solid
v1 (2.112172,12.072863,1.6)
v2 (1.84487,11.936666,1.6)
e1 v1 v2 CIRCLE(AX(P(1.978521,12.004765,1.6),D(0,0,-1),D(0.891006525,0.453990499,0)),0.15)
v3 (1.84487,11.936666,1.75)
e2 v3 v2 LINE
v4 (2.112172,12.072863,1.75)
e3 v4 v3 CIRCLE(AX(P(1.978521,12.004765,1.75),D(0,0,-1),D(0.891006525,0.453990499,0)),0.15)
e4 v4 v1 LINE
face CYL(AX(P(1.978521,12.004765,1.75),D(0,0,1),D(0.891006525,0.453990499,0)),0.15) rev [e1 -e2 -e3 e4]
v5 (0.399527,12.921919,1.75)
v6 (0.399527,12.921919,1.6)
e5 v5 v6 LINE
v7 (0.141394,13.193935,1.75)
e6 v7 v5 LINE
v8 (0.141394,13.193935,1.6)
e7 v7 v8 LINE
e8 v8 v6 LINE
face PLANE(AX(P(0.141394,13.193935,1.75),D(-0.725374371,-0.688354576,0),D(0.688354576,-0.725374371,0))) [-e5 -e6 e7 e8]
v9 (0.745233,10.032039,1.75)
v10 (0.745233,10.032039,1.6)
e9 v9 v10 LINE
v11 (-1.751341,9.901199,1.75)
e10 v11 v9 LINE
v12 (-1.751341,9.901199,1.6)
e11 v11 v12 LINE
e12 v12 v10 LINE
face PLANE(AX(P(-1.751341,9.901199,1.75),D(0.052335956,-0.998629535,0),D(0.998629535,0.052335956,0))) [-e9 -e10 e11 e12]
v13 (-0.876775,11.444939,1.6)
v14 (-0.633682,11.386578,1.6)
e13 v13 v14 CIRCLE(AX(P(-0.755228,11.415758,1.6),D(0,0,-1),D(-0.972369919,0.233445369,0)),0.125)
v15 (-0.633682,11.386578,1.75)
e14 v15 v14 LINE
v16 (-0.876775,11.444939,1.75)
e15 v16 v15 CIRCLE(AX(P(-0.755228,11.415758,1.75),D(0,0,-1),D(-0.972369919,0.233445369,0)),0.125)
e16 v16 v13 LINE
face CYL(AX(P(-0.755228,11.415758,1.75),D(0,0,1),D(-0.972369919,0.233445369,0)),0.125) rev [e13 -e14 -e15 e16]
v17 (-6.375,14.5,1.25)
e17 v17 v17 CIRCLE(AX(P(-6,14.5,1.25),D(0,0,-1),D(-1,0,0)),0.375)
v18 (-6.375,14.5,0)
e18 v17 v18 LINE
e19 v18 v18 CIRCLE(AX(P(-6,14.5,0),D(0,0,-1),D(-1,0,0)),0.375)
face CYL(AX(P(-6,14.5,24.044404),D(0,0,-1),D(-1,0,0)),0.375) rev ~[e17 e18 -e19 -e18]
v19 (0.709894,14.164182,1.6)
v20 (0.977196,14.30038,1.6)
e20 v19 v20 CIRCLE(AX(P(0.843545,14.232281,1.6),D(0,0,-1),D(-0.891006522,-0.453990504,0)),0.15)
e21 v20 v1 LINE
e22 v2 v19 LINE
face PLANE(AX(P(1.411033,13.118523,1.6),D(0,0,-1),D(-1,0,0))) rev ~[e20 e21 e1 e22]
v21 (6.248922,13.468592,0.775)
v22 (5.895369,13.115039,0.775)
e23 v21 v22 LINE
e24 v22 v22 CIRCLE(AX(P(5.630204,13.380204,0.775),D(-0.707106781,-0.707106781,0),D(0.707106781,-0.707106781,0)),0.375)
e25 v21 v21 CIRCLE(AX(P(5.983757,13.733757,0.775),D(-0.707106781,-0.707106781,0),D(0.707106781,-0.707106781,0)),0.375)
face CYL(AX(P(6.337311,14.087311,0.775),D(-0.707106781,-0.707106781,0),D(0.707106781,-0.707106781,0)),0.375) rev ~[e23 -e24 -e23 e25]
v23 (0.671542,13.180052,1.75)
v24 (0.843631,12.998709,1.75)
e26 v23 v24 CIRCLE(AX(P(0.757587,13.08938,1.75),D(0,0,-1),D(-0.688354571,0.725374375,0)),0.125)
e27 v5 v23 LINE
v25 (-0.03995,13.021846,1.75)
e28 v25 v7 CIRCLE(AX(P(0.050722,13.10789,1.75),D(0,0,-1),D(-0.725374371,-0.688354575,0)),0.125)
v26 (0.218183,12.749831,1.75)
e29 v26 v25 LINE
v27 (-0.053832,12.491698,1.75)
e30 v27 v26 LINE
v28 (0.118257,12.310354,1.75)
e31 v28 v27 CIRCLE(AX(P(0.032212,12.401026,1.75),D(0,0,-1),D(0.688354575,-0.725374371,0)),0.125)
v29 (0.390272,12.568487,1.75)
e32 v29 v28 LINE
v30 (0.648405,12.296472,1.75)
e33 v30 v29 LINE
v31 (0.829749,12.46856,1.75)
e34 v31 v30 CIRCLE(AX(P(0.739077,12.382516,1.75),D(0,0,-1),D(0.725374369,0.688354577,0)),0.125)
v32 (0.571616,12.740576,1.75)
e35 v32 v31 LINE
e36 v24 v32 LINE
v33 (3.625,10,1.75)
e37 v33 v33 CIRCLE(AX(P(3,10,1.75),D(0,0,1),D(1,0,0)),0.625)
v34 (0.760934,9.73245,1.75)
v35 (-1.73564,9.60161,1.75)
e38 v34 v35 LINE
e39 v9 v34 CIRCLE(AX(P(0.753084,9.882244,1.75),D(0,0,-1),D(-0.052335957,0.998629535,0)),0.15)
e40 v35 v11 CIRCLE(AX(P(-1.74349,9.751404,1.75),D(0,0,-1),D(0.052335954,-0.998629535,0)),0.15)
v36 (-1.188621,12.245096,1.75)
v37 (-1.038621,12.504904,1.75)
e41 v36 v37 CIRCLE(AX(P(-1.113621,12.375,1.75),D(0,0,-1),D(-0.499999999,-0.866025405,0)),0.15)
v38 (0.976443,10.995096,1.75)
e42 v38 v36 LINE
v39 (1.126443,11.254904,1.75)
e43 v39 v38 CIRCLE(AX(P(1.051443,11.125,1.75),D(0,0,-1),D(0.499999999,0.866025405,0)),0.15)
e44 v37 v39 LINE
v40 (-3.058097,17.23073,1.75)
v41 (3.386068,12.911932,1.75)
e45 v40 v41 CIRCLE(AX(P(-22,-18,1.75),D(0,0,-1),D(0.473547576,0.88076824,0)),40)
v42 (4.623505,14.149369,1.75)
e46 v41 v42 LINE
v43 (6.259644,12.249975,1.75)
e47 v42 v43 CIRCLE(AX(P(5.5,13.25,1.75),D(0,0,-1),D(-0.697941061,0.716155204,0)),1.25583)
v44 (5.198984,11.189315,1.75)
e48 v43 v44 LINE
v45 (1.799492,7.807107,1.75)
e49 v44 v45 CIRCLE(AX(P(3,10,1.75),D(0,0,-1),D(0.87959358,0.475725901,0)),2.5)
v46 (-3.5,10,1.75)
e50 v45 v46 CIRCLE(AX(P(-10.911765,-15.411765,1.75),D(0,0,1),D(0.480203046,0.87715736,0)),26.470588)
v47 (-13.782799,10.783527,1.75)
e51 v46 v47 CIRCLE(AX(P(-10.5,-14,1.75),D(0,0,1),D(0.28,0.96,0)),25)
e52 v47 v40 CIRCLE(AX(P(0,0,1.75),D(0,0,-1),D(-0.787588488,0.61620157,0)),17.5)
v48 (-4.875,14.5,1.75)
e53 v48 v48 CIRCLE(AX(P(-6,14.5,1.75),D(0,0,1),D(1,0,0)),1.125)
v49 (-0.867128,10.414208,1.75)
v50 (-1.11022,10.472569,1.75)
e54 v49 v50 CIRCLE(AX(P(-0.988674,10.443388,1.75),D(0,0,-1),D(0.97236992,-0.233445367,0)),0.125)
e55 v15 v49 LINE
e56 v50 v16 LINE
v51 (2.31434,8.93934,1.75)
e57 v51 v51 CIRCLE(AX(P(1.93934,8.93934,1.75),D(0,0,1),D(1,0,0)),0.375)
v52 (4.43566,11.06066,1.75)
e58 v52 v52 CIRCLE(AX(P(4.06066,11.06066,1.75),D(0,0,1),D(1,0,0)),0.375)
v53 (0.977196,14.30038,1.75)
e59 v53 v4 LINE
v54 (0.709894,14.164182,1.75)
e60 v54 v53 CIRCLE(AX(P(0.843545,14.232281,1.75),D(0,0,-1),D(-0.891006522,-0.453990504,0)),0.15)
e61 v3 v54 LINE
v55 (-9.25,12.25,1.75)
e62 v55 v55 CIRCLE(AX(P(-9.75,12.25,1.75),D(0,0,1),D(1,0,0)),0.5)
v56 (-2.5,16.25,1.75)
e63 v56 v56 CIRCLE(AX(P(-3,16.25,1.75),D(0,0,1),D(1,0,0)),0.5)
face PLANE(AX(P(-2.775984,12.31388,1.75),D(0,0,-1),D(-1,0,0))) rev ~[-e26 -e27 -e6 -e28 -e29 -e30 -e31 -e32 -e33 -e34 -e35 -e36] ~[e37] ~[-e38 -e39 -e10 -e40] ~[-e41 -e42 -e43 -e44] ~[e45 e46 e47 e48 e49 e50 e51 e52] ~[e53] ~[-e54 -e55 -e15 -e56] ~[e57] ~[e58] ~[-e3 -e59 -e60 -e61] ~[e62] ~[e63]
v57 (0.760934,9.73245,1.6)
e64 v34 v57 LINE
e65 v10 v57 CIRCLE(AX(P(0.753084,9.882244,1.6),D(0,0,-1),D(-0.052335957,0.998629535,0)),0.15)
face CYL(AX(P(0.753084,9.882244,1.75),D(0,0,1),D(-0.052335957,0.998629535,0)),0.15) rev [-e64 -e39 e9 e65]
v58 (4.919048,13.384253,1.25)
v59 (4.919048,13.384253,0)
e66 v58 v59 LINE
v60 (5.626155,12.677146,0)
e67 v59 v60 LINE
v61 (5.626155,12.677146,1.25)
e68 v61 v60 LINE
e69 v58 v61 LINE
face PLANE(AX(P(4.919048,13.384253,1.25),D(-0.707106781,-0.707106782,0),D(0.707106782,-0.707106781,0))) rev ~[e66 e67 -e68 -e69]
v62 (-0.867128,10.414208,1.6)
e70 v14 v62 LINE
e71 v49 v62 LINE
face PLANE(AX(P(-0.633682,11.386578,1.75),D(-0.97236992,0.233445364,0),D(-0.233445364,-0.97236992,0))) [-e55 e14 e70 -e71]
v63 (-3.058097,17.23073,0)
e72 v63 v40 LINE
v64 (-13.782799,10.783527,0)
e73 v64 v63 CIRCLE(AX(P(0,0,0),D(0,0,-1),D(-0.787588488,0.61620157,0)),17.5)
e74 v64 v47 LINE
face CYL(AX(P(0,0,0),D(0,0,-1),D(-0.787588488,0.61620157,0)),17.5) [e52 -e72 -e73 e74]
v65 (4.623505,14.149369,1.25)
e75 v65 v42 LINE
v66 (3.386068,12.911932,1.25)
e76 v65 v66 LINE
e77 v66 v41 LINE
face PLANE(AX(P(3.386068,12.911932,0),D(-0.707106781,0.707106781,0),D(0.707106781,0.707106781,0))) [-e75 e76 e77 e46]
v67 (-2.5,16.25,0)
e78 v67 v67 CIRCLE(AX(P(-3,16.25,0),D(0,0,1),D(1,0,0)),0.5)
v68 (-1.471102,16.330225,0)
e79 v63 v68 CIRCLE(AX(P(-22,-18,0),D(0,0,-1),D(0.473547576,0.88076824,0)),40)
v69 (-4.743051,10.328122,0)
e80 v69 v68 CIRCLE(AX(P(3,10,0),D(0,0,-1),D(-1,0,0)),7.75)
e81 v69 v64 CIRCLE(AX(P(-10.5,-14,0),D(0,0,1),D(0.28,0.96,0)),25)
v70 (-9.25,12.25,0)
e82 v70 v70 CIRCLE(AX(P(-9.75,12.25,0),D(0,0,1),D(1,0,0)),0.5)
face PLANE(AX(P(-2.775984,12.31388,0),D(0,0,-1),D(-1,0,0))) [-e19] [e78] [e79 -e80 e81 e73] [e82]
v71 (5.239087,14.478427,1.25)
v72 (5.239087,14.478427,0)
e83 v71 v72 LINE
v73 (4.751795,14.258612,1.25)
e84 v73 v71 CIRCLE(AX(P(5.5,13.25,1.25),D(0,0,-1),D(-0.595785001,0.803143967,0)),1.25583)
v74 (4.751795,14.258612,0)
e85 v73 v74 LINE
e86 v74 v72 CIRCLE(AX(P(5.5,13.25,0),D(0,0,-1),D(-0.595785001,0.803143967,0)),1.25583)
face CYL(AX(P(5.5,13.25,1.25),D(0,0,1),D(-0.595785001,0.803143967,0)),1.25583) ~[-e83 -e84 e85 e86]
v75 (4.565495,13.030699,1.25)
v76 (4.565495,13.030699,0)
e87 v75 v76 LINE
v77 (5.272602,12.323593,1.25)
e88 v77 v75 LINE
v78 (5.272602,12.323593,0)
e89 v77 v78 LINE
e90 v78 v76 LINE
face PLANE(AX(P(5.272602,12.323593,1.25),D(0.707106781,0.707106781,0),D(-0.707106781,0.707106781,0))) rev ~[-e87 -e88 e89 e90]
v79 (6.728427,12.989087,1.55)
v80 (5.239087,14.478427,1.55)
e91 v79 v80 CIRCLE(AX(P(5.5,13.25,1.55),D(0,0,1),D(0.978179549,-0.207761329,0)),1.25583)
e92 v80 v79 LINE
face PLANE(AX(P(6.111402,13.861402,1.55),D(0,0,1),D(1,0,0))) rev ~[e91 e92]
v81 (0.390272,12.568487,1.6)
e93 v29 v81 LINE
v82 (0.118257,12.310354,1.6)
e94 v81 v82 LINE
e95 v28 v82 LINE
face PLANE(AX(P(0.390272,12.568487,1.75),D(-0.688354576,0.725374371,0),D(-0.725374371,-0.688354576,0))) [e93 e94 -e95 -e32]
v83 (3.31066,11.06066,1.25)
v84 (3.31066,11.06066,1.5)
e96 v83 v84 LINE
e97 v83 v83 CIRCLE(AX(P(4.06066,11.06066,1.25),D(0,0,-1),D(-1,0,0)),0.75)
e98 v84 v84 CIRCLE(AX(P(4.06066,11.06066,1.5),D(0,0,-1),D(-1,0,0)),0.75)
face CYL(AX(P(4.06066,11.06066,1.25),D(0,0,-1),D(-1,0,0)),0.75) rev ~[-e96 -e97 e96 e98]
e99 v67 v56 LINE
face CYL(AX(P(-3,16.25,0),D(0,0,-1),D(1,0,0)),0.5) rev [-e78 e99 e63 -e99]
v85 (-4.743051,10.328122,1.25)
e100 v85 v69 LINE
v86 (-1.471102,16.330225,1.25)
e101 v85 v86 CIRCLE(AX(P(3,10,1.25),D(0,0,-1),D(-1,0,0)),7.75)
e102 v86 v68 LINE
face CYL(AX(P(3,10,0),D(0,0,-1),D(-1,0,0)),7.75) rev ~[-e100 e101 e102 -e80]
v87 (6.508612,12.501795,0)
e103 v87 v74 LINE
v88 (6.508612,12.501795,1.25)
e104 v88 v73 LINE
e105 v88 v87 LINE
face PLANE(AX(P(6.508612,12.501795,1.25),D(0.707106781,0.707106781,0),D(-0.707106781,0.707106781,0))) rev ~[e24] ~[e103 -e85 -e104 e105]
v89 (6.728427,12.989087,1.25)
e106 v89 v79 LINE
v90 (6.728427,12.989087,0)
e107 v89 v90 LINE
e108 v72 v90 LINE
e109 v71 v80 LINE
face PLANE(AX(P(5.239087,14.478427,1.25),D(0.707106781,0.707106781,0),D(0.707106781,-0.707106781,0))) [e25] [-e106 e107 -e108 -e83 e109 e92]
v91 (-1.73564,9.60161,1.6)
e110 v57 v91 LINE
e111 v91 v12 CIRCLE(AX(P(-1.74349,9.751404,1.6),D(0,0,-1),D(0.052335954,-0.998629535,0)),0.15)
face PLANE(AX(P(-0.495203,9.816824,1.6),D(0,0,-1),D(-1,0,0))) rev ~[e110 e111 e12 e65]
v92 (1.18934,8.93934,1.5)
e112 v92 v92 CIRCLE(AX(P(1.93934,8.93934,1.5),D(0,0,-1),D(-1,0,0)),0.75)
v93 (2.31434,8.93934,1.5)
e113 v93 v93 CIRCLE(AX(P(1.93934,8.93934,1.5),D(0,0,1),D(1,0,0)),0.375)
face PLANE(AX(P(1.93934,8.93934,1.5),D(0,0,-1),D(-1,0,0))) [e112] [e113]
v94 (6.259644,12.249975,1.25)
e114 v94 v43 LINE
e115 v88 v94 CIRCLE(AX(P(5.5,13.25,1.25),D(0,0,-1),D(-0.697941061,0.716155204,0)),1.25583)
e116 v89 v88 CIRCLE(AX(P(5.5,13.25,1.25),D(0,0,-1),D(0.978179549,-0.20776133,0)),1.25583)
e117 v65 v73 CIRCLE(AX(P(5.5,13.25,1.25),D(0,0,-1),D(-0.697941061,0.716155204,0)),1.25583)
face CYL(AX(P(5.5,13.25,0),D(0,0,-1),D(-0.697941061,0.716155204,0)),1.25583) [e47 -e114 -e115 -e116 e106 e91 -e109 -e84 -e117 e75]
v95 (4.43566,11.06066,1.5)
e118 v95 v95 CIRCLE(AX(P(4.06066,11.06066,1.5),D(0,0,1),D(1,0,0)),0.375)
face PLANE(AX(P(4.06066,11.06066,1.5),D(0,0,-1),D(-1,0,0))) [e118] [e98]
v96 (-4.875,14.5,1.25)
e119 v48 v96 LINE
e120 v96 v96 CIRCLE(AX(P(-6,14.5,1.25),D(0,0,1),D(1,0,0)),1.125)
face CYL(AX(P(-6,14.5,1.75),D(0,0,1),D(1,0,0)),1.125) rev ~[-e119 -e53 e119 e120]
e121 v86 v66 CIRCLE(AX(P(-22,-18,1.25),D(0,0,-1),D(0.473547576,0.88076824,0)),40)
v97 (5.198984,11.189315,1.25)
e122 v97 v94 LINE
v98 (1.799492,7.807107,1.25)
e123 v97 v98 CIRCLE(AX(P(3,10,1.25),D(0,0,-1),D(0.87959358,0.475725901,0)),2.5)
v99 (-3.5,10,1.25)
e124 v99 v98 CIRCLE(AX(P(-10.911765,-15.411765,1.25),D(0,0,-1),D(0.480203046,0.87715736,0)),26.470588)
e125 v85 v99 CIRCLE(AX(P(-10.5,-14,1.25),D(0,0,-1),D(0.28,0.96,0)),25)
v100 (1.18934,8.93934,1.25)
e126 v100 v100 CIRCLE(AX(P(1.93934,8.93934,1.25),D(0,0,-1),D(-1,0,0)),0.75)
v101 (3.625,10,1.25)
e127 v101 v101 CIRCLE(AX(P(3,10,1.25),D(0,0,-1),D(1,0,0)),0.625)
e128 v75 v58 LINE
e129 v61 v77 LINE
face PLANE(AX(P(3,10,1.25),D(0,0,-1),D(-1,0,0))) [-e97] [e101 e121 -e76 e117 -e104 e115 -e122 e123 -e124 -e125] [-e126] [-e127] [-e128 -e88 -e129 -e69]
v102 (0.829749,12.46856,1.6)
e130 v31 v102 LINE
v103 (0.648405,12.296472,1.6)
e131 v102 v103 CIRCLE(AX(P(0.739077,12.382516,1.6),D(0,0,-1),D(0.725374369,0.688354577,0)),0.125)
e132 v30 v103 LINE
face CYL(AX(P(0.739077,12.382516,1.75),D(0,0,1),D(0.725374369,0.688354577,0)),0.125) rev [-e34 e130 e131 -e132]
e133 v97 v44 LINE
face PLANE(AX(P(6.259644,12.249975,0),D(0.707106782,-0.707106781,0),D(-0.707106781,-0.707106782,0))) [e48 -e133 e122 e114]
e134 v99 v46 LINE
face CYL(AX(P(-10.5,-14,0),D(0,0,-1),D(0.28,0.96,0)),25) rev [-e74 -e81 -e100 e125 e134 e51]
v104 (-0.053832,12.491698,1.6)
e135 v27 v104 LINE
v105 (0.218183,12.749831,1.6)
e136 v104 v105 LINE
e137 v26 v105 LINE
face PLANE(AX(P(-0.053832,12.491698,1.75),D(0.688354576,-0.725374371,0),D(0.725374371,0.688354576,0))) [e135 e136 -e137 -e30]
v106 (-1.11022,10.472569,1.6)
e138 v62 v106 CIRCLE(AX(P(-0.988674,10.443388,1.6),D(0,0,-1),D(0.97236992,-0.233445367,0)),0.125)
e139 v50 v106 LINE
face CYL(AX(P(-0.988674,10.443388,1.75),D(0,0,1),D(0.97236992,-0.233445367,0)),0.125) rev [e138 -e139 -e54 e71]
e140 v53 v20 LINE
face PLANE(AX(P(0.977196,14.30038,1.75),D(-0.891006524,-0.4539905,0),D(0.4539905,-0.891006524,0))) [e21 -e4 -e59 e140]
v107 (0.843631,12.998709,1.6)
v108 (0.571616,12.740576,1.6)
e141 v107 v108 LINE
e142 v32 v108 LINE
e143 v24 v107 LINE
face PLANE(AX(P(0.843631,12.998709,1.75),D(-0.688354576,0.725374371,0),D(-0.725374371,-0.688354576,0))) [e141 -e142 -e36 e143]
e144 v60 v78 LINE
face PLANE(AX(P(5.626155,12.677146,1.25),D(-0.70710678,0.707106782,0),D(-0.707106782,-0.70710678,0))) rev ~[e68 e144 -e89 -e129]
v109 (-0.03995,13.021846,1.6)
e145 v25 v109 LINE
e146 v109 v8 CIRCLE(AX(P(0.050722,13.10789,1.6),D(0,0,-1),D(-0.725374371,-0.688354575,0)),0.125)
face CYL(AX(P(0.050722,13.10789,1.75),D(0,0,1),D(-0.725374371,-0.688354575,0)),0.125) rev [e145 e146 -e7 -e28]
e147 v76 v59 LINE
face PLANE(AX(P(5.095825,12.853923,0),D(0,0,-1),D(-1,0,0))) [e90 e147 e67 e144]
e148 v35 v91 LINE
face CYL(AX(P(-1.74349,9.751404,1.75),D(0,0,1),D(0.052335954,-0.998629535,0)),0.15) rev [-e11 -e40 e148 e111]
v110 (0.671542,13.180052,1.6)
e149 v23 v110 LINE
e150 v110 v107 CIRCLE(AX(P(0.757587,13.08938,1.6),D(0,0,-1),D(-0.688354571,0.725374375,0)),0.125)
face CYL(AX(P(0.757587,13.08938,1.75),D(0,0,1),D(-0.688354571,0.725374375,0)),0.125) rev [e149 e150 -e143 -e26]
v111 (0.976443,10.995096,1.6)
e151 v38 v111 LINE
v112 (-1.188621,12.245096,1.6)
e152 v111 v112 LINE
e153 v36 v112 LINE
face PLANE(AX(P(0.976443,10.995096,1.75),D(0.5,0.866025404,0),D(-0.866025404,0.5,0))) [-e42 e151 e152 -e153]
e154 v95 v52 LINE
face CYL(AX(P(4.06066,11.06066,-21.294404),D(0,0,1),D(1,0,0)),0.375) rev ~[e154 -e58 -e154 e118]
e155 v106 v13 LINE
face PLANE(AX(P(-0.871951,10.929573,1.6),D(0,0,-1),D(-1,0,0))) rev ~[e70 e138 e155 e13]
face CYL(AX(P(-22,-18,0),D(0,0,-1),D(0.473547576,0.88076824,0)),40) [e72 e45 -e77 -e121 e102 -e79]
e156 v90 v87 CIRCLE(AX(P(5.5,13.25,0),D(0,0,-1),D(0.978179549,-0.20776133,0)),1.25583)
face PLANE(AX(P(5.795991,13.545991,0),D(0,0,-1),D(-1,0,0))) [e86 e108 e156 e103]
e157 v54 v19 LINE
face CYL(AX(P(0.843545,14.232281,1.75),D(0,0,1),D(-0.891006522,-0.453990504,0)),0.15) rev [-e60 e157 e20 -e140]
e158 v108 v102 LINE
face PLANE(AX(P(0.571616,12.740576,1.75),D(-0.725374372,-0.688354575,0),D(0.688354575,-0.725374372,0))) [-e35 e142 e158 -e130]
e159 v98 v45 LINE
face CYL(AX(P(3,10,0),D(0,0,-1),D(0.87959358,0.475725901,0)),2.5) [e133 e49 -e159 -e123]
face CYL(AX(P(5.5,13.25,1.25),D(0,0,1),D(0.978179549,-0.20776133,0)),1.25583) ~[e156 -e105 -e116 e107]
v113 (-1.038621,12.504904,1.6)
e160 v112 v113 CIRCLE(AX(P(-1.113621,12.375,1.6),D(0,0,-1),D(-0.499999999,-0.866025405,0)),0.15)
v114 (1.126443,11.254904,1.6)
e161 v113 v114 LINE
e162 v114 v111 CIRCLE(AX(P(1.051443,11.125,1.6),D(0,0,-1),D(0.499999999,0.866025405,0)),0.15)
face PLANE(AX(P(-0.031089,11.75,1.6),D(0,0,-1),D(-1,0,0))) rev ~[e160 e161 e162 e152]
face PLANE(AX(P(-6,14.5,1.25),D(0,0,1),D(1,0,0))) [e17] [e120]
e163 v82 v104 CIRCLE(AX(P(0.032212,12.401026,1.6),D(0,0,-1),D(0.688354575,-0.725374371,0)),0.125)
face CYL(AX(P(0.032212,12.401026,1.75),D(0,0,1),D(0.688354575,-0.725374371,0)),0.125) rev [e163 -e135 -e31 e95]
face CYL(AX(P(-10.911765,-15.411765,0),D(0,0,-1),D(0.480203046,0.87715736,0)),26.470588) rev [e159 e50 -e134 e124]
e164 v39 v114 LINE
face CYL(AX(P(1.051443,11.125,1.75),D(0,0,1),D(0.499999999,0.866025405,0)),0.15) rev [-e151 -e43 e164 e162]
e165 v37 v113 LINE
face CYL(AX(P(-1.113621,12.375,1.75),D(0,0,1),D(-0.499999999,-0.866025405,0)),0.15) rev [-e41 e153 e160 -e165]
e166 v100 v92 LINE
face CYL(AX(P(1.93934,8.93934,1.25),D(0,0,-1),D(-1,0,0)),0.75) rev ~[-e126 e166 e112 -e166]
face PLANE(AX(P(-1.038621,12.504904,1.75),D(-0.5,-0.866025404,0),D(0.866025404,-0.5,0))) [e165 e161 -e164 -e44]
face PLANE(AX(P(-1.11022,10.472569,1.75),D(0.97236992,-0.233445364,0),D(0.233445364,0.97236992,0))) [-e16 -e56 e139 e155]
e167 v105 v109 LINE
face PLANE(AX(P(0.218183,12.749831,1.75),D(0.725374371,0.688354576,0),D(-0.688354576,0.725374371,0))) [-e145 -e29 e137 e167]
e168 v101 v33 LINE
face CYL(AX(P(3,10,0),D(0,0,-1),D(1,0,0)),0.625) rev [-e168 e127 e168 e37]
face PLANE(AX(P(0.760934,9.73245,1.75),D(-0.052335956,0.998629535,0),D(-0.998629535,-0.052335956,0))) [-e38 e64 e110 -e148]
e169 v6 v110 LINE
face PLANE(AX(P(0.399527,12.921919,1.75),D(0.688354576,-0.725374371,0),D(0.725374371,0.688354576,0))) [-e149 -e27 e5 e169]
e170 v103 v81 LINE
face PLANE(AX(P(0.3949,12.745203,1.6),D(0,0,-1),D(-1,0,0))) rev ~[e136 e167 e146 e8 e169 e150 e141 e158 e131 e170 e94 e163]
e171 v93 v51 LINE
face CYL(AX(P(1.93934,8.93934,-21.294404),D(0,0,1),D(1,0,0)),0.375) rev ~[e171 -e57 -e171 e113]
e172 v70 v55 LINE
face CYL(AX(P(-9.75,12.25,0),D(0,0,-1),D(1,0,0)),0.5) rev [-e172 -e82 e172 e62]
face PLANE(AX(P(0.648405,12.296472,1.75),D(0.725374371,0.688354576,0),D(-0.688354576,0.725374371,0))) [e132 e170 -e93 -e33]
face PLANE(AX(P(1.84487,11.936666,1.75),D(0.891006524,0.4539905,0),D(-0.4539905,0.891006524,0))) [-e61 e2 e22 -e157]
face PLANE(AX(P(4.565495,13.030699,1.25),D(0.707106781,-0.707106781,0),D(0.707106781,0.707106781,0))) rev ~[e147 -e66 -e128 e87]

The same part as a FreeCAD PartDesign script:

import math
import FreeCAD as App
import Part
import Sketcher
from FreeCAD import Vector
Q = App.Units.Quantity

doc = App.newDocument("Part")
params = doc.addObject("Spreadsheet::Sheet", "Params")
for row, (alias, value) in enumerate([
    ("sketch1_diameter", "1 mm"),
    ("sketch1_radius", "40 mm"),
    ("sketch1_radius2", "25 mm"),
    ("sketch1_radius3", "17.5 mm"),
    ("sketch1_radius4", "2.5 mm"),
    ("pad1_length", "1.75 mm"),
    ("sketch2_diameter", "15.5 mm"),
    ("pocket1_length", "1.25 mm"),
    ("sketch3_length", "1 mm"),
    ("sketch3_length2", "0.5 mm"),
    ("pad2_length", "1.25 mm"),
    ("pocket2_length", "0.3 mm"),
    ("sketch5_diameter", "1.5 mm"),
    ("pocket3_length", "0.25 mm"),
    ("sketch6_diameter", "2.25 mm"),
    ("pocket4_length", "0.5 mm"),
    ("sketch7_radius", "0.15 mm"),
    ("sketch7_length", "1 mm"),
    ("sketch7_length2", "2.5 mm"),
    ("pocket5_length", "0.15 mm"),
    ("sketch8_diameter", "0.75 mm"),
    ("hole_diameter", "0.75 mm"),
    ("sketch9_diameter", "0.75 mm"),
    ("hole2_diameter", "0.75 mm"),
    ("sketch10_diameter", "0.75 mm"),
    ("hole3_diameter", "0.75 mm"),
    ("hole3_depth", "0.5 mm"),
], start=1):
    params.set(f"A{row}", alias)
    params.set(f"B{row}", "=" + value)
    params.setAlias(f"B{row}", alias)

body = doc.addObject("PartDesign::Body", "Body")

# Sketch on XY plane
sketch1 = body.newObject("Sketcher::SketchObject", "Sketch")
sketch1.AttachmentSupport = (doc.getObject("XY_Plane"), [""])
sketch1.MapMode = "FlatFace"
sketch1.addGeometry([
    Part.LineSegment(Vector(5.198984, 11.189315, 0), Vector(6.259644, 12.249975, 0)),  # 0
    Part.ArcOfCircle(Part.Circle(Vector(5.5, 13.25, 0), Vector(0, 0, 1), 1.25583), math.radians(-52.778785), math.radians(134.262048)),  # 1
    Part.LineSegment(Vector(4.623505, 14.149369, 0), Vector(3.386068, 12.911932, 0)),  # 2
    Part.ArcOfCircle(Part.Circle(Vector(-22, -18, 0), Vector(0, 0, 1), 40), math.radians(50.605844), math.radians(61.735175)),  # 3
    Part.ArcOfCircle(Part.Circle(Vector(0, 0, 0), Vector(0, 0, 1), 17.5), math.radians(100.064017), math.radians(141.96072)),  # 4
    Part.ArcOfCircle(Part.Circle(Vector(-10.5, -14, 0), Vector(0, 0, 1), 25), math.radians(73.739795), math.radians(97.545411)),  # 5
    Part.ArcOfCircle(Part.Circle(Vector(-10.911765, -15.411765, 0), Vector(0, 0, 1), 26.470588), math.radians(61.301336), math.radians(73.739795)),  # 6
    Part.ArcOfCircle(Part.Circle(Vector(3, 10, 0), Vector(0, 0, 1), 2.5), math.radians(-118.698664), math.radians(28.406624)),  # 7
    Part.Circle(Vector(3, 10, 0), Vector(0, 0, 1), 0.625),  # 8
    Part.Circle(Vector(-9.75, 12.25, 0), Vector(0, 0, 1), 0.5),  # 9
    Part.Circle(Vector(-3, 16.25, 0), Vector(0, 0, 1), 0.5),  # 10
], False)
sketch1.addConstraint([
    Sketcher.Constraint("Coincident", 0, 2, 1, 1),
    Sketcher.Constraint("Coincident", 1, 2, 2, 1),
    Sketcher.Constraint("Coincident", 2, 2, 3, 1),
    Sketcher.Constraint("Coincident", 3, 2, 4, 1),
    Sketcher.Constraint("Coincident", 4, 2, 5, 2),
    Sketcher.Constraint("Tangent", 5, 1, 6, 2),
    Sketcher.Constraint("Tangent", 6, 1, 7, 1),
    Sketcher.Constraint("Coincident", 7, 2, 0, 1),
    Sketcher.Constraint("Coincident", 4, 3, -1, 1),
    Sketcher.Constraint("Coincident", 8, 3, 7, 3),
    Sketcher.Constraint("Equal", 9, 10),
    Sketcher.Constraint("Parallel", 0, 2),
    Sketcher.Constraint("Horizontal", 8, 3, 5, 1),
    Sketcher.Constraint("Diameter", 9, 1.0),
    Sketcher.Constraint("Radius", 3, 40.0),
    Sketcher.Constraint("Radius", 5, 25.0),
    Sketcher.Constraint("Radius", 4, 17.5),
    Sketcher.Constraint("Radius", 7, 2.5),
    Sketcher.Constraint("Diameter", 8, 1.25),
    Sketcher.Constraint("Angle", 0, Q("45 deg")),
    Sketcher.Constraint("DistanceX", 3, 3, -1, 1, 22.0),
    Sketcher.Constraint("DistanceY", 3, 3, -1, 1, 18.0),
    Sketcher.Constraint("DistanceY", 5, 3, -1, 1, 14.0),
    Sketcher.Constraint("DistanceX", -1, 1, 7, 3, 3.0),
    Sketcher.Constraint("DistanceY", -1, 1, 7, 3, 10.0),
    Sketcher.Constraint("DistanceX", 10, 3, -1, 1, 3.0),
    Sketcher.Constraint("DistanceX", 5, 3, 1, 3, 16.0),
    Sketcher.Constraint("DistanceY", 9, 3, 1, 3, 1.0),
    Sketcher.Constraint("DistanceY", 9, 3, 10, 3, 4.0),
    Sketcher.Constraint("Distance", 0, 1.5),
    Sketcher.Constraint("DistanceX", -1, 1, 1, 3, 5.5),
    Sketcher.Constraint("Distance", 2, 1.75),
    Sketcher.Constraint("DistanceY", -1, 1, 1, 3, 13.25),
    Sketcher.Constraint("DistanceX", 9, 3, -1, 1, 9.75),
    Sketcher.Constraint("Radius", 1, 1.25583),
])
sketch1.setExpression("Constraints[13]", "Params.sketch1_diameter")
sketch1.setExpression("Constraints[14]", "Params.sketch1_radius")
sketch1.setExpression("Constraints[15]", "Params.sketch1_radius2")
sketch1.setExpression("Constraints[16]", "Params.sketch1_radius3")
sketch1.setExpression("Constraints[17]", "Params.sketch1_radius4")
pad1 = body.newObject("PartDesign::Pad", "Pad")
pad1.Profile = sketch1
pad1.setExpression("Length", "Params.pad1_length")

# Sketch on XY plane
sketch2 = body.newObject("Sketcher::SketchObject", "Sketch001")
sketch2.AttachmentSupport = (doc.getObject("XY_Plane"), [""])
sketch2.MapMode = "FlatFace"
sketch2.addGeometry(Part.Circle(Vector(3, 10, 0), Vector(0, 0, 1), 7.75), False)
sketch2.addConstraint([
    Sketcher.Constraint("Diameter", 0, 15.5),
    Sketcher.Constraint("DistanceX", -1, 1, 0, 3, 3.0),
    Sketcher.Constraint("DistanceY", -1, 1, 0, 3, 10.0),
])
sketch2.setExpression("Constraints[0]", "Params.sketch2_diameter")
pocket1 = body.newObject("PartDesign::Pocket", "Pocket")
pocket1.Profile = sketch2
pocket1.setExpression("Length", "Params.pocket1_length")
pocket1.Reversed = True

# Sketch on XY plane
sketch3 = body.newObject("Sketcher::SketchObject", "Sketch002")
sketch3.AttachmentSupport = (doc.getObject("XY_Plane"), [""])
sketch3.MapMode = "FlatFace"
sketch3.AttachmentOffset = App.Placement(Vector(0, 0, 1.25), App.Rotation())
sketch3.addGeometry([
    Part.LineSegment(Vector(5.272602, 12.323593, 0), Vector(4.565495, 13.030699, 0)),  # 0
    Part.LineSegment(Vector(4.565495, 13.030699, 0), Vector(4.919048, 13.384253, 0)),  # 1
    Part.LineSegment(Vector(4.919048, 13.384253, 0), Vector(5.626155, 12.677146, 0)),  # 2
    Part.LineSegment(Vector(5.626155, 12.677146, 0), Vector(5.272602, 12.323593, 0)),  # 3
    Part.LineSegment(Vector(6.508612, 12.501795, 0), Vector(4.751795, 14.258612, 0)),  # 4
    Part.ArcOfCircle(Part.Circle(Vector(5.5, 13.25, 0), Vector(0, 0, 1), 1.25583), math.radians(101.991193), math.radians(126.568613)),  # 5
    Part.LineSegment(Vector(5.239087, 14.478427, 0), Vector(6.728427, 12.989087, 0)),  # 6
    Part.ArcOfCircle(Part.Circle(Vector(5.5, 13.25, 0), Vector(0, 0, 1), 1.25583), math.radians(-36.568613), math.radians(-11.991193)),  # 7
], False)
sketch3.addConstraint([
    Sketcher.Constraint("Coincident", 0, 2, 1, 1),
    Sketcher.Constraint("Coincident", 1, 2, 2, 1),
    Sketcher.Constraint("Coincident", 2, 2, 3, 1),
    Sketcher.Constraint("Coincident", 3, 2, 0, 1),
    Sketcher.Constraint("Coincident", 4, 2, 5, 2),
    Sketcher.Constraint("Coincident", 5, 1, 6, 1),
    Sketcher.Constraint("Coincident", 6, 2, 7, 2),
    Sketcher.Constraint("Coincident", 7, 1, 4, 1),
    Sketcher.Constraint("Coincident", 7, 3, 5, 3),
    Sketcher.Constraint("Equal", 5, 7),
    Sketcher.Constraint("Perpendicular", 0, 1),
    Sketcher.Constraint("Perpendicular", 1, 2),
    Sketcher.Constraint("Perpendicular", 2, 3),
    Sketcher.Constraint("Perpendicular", 3, 4),
    Sketcher.Constraint("Parallel", 4, 6),
    Sketcher.Constraint("Angle", 0, Q("135 deg")),
    Sketcher.Constraint("Distance", 0, 1.0),
    Sketcher.Constraint("Distance", 1, 0.5),
    Sketcher.Constraint("DistanceX", -1, 1, 5, 3, 5.5),
    Sketcher.Constraint("DistanceY", -1, 1, 5, 3, 13.25),
    Sketcher.Constraint("Radius", 5, 1.25583),
    Sketcher.Constraint("DistanceY", -1, 1, 0, 2, 13.030699),
    Sketcher.Constraint("DistanceX", -1, 1, 3, 2, 5.272602),
    Sketcher.Constraint("DistanceX", 0, 2, 4, 2, 0.1863),
    Sketcher.Constraint("DistanceX", 4, 2, 5, 1, 0.487292),
])
sketch3.setExpression("Constraints[16]", "Params.sketch3_length")
sketch3.setExpression("Constraints[17]", "Params.sketch3_length2")
pad2 = body.newObject("PartDesign::Pad", "Pad001")
pad2.Profile = sketch3
pad2.setExpression("Length", "Params.pad2_length")
pad2.Reversed = True

# Sketch on XY plane
sketch4 = body.newObject("Sketcher::SketchObject", "Sketch003")
sketch4.AttachmentSupport = (doc.getObject("XY_Plane"), [""])
sketch4.MapMode = "FlatFace"
sketch4.AttachmentOffset = App.Placement(Vector(0, 0, 1.25), App.Rotation())
sketch4.addGeometry([
    Part.LineSegment(Vector(6.728427, 12.989087, 0), Vector(5.239087, 14.478427, 0)),
    Part.ArcOfCircle(Part.Circle(Vector(5.5, 13.25, 0), Vector(0, 0, 1), 1.25583), math.radians(-11.991193), math.radians(101.991193)),
], False)
sketch4.addConstraint([
    Sketcher.Constraint("Coincident", 0, 1, 1, 1),
    Sketcher.Constraint("Coincident", 1, 2, 0, 2),
    Sketcher.Constraint("Angle", 0, Q("135 deg")),
    Sketcher.Constraint("DistanceX", -1, 1, 1, 3, 5.5),
    Sketcher.Constraint("DistanceY", -1, 1, 1, 3, 13.25),
    Sketcher.Constraint("Radius", 1, 1.25583),
    Sketcher.Constraint("DistanceX", 1, 2, 0, 1, 1.48934),
])
pocket2 = body.newObject("PartDesign::Pocket", "Pocket001")
pocket2.Profile = sketch4
pocket2.setExpression("Length", "Params.pocket2_length")
pocket2.Reversed = True

# Sketch on XY plane
sketch5 = body.newObject("Sketcher::SketchObject", "Sketch004")
sketch5.AttachmentSupport = (doc.getObject("XY_Plane"), [""])
sketch5.MapMode = "FlatFace"
sketch5.AttachmentOffset = App.Placement(Vector(0, 0, 1.25), App.Rotation())
sketch5.addGeometry([
    Part.Circle(Vector(4.06066, 11.06066, 0), Vector(0, 0, 1), 0.75),
    Part.Circle(Vector(1.93934, 8.93934, 0), Vector(0, 0, 1), 0.75),
], False)
sketch5.addConstraint([
    Sketcher.Constraint("Equal", 0, 1),
    Sketcher.Constraint("Diameter", 0, 1.5),
    Sketcher.Constraint("DistanceX", -1, 1, 0, 3, 4.06066),
    Sketcher.Constraint("DistanceY", -1, 1, 0, 3, 11.06066),
    Sketcher.Constraint("DistanceX", -1, 1, 1, 3, 1.93934),
    Sketcher.Constraint("DistanceY", -1, 1, 1, 3, 8.93934),
])
sketch5.setExpression("Constraints[1]", "Params.sketch5_diameter")
pocket3 = body.newObject("PartDesign::Pocket", "Pocket002")
pocket3.Profile = sketch5
pocket3.setExpression("Length", "Params.pocket3_length")
pocket3.Reversed = True

# Sketch on XY plane
sketch6 = body.newObject("Sketcher::SketchObject", "Sketch005")
sketch6.AttachmentSupport = (doc.getObject("XY_Plane"), [""])
sketch6.MapMode = "FlatFace"
sketch6.AttachmentOffset = App.Placement(Vector(0, 0, 1.75), App.Rotation())
sketch6.addGeometry(Part.Circle(Vector(-6, 14.5, 0), Vector(0, 0, 1), 1.125), False)
sketch6.addConstraint([
    Sketcher.Constraint("Diameter", 0, 2.25),
    Sketcher.Constraint("DistanceX", 0, 3, -1, 1, 6.0),
    Sketcher.Constraint("DistanceY", -1, 1, 0, 3, 14.5),
])
sketch6.setExpression("Constraints[0]", "Params.sketch6_diameter")
pocket4 = body.newObject("PartDesign::Pocket", "Pocket003")
pocket4.Profile = sketch6
pocket4.setExpression("Length", "Params.pocket4_length")

# Sketch on XY plane
sketch7 = body.newObject("Sketcher::SketchObject", "Sketch006")
sketch7.AttachmentSupport = (doc.getObject("XY_Plane"), [""])
sketch7.MapMode = "FlatFace"
sketch7.AttachmentOffset = App.Placement(Vector(0, 0, 1.75), App.Rotation())
sketch7.addGeometry([
    Part.LineSegment(Vector(2.112172, 12.072863, 0), Vector(0.977196, 14.30038, 0)),  # 0
    Part.ArcOfCircle(Part.Circle(Vector(0.843545, 14.232281, 0), Vector(0, 0, 1), 0.15), math.radians(27), math.radians(207)),  # 1
    Part.LineSegment(Vector(0.709894, 14.164182, 0), Vector(1.84487, 11.936666, 0)),  # 2
    Part.ArcOfCircle(Part.Circle(Vector(1.978521, 12.004765, 0), Vector(0, 0, 1), 0.15), math.radians(-153), math.radians(27)),  # 3
    Part.LineSegment(Vector(-1.73564, 9.60161, 0), Vector(0.760934, 9.73245, 0)),  # 4
    Part.ArcOfCircle(Part.Circle(Vector(0.753084, 9.882244, 0), Vector(0, 0, 1), 0.15), math.radians(-87), math.radians(93)),  # 5
    Part.LineSegment(Vector(0.745233, 10.032039, 0), Vector(-1.751341, 9.901199, 0)),  # 6
    Part.ArcOfCircle(Part.Circle(Vector(-1.74349, 9.751404, 0), Vector(0, 0, 1), 0.15), math.radians(93), math.radians(273)),  # 7
    Part.LineSegment(Vector(1.126443, 11.254904, 0), Vector(-1.038621, 12.504904, 0)),  # 8
    Part.ArcOfCircle(Part.Circle(Vector(-1.113621, 12.375, 0), Vector(0, 0, 1), 0.15), math.radians(60), math.radians(240)),  # 9
    Part.LineSegment(Vector(-1.188621, 12.245096, 0), Vector(0.976443, 10.995096, 0)),  # 10
    Part.ArcOfCircle(Part.Circle(Vector(1.051443, 11.125, 0), Vector(0, 0, 1), 0.15), math.radians(-120), math.radians(60)),  # 11
    Part.LineSegment(Vector(-0.867128, 10.414208, 0), Vector(-0.633682, 11.386578, 0)),  # 12
    Part.ArcOfCircle(Part.Circle(Vector(-0.755228, 11.415758, 0), Vector(0, 0, 1), 0.125), math.radians(-13.5), math.radians(166.5)),  # 13
    Part.LineSegment(Vector(-0.876775, 11.444939, 0), Vector(-1.11022, 10.472569, 0)),  # 14
    Part.ArcOfCircle(Part.Circle(Vector(-0.988674, 10.443388, 0), Vector(0, 0, 1), 0.125), math.radians(166.5), math.radians(346.5)),  # 15
    Part.LineSegment(Vector(0.218183, 12.749831, 0), Vector(-0.053832, 12.491698, 0)),  # 16
    Part.ArcOfCircle(Part.Circle(Vector(0.032212, 12.401026, 0), Vector(0, 0, 1), 0.125), math.radians(133.5), math.radians(313.5)),  # 17
    Part.LineSegment(Vector(0.118257, 12.310354, 0), Vector(0.390272, 12.568487, 0)),  # 18
    Part.LineSegment(Vector(0.390272, 12.568487, 0), Vector(0.648405, 12.296472, 0)),  # 19
    Part.ArcOfCircle(Part.Circle(Vector(0.739077, 12.382516, 0), Vector(0, 0, 1), 0.125), math.radians(-136.5), math.radians(43.5)),  # 20
    Part.LineSegment(Vector(0.829749, 12.46856, 0), Vector(0.571616, 12.740576, 0)),  # 21
    Part.LineSegment(Vector(0.571616, 12.740576, 0), Vector(0.843631, 12.998709, 0)),  # 22
    Part.ArcOfCircle(Part.Circle(Vector(0.757587, 13.08938, 0), Vector(0, 0, 1), 0.125), math.radians(-46.5), math.radians(133.499999)),  # 23
    Part.LineSegment(Vector(0.671542, 13.180052, 0), Vector(0.399527, 12.921919, 0)),  # 24
    Part.LineSegment(Vector(0.399527, 12.921919, 0), Vector(0.141394, 13.193935, 0)),  # 25
    Part.ArcOfCircle(Part.Circle(Vector(0.050722, 13.10789, 0), Vector(0, 0, 1), 0.125), math.radians(43.5), math.radians(223.5)),  # 26
    Part.LineSegment(Vector(-0.03995, 13.021846, 0), Vector(0.218183, 12.749831, 0)),  # 27
], False)
sketch7.addConstraint([
    Sketcher.Constraint("Tangent", 0, 2, 1, 1),
    Sketcher.Constraint("Tangent", 1, 2, 2, 1),
    Sketcher.Constraint("Tangent", 2, 2, 3, 1),
    Sketcher.Constraint("Tangent", 3, 2, 0, 1),
    Sketcher.Constraint("Tangent", 4, 2, 5, 1),
    Sketcher.Constraint("Tangent", 5, 2, 6, 1),
    Sketcher.Constraint("Tangent", 6, 2, 7, 1),
    Sketcher.Constraint("Tangent", 7, 2, 4, 1),
    Sketcher.Constraint("Tangent", 8, 2, 9, 1),
    Sketcher.Constraint("Tangent", 9, 2, 10, 1),
    Sketcher.Constraint("Tangent", 10, 2, 11, 1),
    Sketcher.Constraint("Tangent", 11, 2, 8, 1),
    Sketcher.Constraint("Tangent", 12, 2, 13, 1),
    Sketcher.Constraint("Tangent", 13, 2, 14, 1),
    Sketcher.Constraint("Tangent", 14, 2, 15, 1),
    Sketcher.Constraint("Tangent", 15, 2, 12, 1),
    Sketcher.Constraint("Tangent", 16, 2, 17, 1),
    Sketcher.Constraint("Tangent", 17, 2, 18, 1),
    Sketcher.Constraint("Coincident", 18, 2, 19, 1),
    Sketcher.Constraint("Tangent", 19, 2, 20, 1),
    Sketcher.Constraint("Tangent", 20, 2, 21, 1),
    Sketcher.Constraint("Coincident", 21, 2, 22, 1),
    Sketcher.Constraint("Tangent", 22, 2, 23, 1),
    Sketcher.Constraint("Tangent", 23, 2, 24, 1),
    Sketcher.Constraint("Coincident", 24, 2, 25, 1),
    Sketcher.Constraint("Tangent", 25, 2, 26, 1),
    Sketcher.Constraint("Tangent", 26, 2, 27, 1),
    Sketcher.Constraint("Coincident", 27, 2, 16, 1),
    Sketcher.Constraint("Equal", 1, 3),
    Sketcher.Constraint("Equal", 3, 5),
    Sketcher.Constraint("Equal", 5, 7),
    Sketcher.Constraint("Equal", 7, 9),
    Sketcher.Constraint("Equal", 9, 11),
    Sketcher.Constraint("Equal", 13, 15),
    Sketcher.Constraint("Equal", 15, 17),
    Sketcher.Constraint("Equal", 17, 20),
    Sketcher.Constraint("Equal", 20, 23),
    Sketcher.Constraint("Equal", 23, 26),
    Sketcher.Constraint("Parallel", 16, 18),
    Sketcher.Constraint("Perpendicular", 18, 19),
    Sketcher.Constraint("Parallel", 19, 21),
    Sketcher.Constraint("Perpendicular", 21, 22),
    Sketcher.Constraint("Parallel", 22, 24),
    Sketcher.Constraint("Perpendicular", 24, 25),
    Sketcher.Constraint("Parallel", 25, 27),
    Sketcher.Constraint("Equal", 2, 4),
    Sketcher.Constraint("Equal", 6, 8),
    Sketcher.Constraint("Equal", 16, 18),
    Sketcher.Constraint("Equal", 18, 19),
    Sketcher.Constraint("Equal", 19, 21),
    Sketcher.Constraint("Equal", 21, 22),
    Sketcher.Constraint("Equal", 24, 25),
    Sketcher.Constraint("Angle", 0, Q("117 deg")),
    Sketcher.Constraint("Angle", 4, Q("3 deg")),
    Sketcher.Constraint("Angle", 8, Q("150 deg")),
    Sketcher.Constraint("Radius", 1, 0.15),
    Sketcher.Constraint("Distance", 12, 1.0),
    Sketcher.Constraint("Angle", 12, Q("76.5 deg")),
    Sketcher.Constraint("Angle", 16, Q("-136.5 deg")),
    Sketcher.Constraint("Radius", 13, 0.125),
    Sketcher.Constraint("Distance", 0, 2.5),
    Sketcher.Constraint("Distance", 16, 0.375),
    Sketcher.Constraint("DistanceY", -1, 1, 9, 3, 12.375),
    Sketcher.Constraint("DistanceY", 23, 3, 0, 2, 1.210999),
    Sketcher.Constraint("DistanceY", -1, 1, 6, 2, 9.901199),
    Sketcher.Constraint("DistanceY", -1, 1, 1, 3, 14.232281),
    Sketcher.Constraint("DistanceX", -1, 1, 3, 3, 1.978521),
    Sketcher.Constraint("DistanceX", 7, 3, -1, 1, 1.74349),
    Sketcher.Constraint("DistanceX", 9, 3, -1, 1, 1.113621),
    Sketcher.Constraint("DistanceX", 13, 3, -1, 1, 0.755228),
    Sketcher.Constraint("DistanceY", -1, 1, 13, 3, 11.415758),
    Sketcher.Constraint("DistanceX", 16, 2, -1, 1, 0.053832),
])
sketch7.setExpression("Constraints[55]", "Params.sketch7_radius")
sketch7.setExpression("Constraints[56]", "Params.sketch7_length")
sketch7.setExpression("Constraints[60]", "Params.sketch7_length2")
pocket5 = body.newObject("PartDesign::Pocket", "Pocket004")
pocket5.Profile = sketch7
pocket5.setExpression("Length", "Params.pocket5_length")

# Sketch on XY plane
sketch8 = body.newObject("Sketcher::SketchObject", "Sketch007")
sketch8.AttachmentSupport = (doc.getObject("XY_Plane"), [""])
sketch8.MapMode = "FlatFace"
sketch8.AttachmentOffset = App.Placement(Vector(0, 0, 1.5), App.Rotation())
sketch8.addGeometry([
    Part.Circle(Vector(1.93934, 8.93934, 0), Vector(0, 0, 1), 0.375),
    Part.Circle(Vector(4.06066, 11.06066, 0), Vector(0, 0, 1), 0.375),
], False)
sketch8.addConstraint([
    Sketcher.Constraint("Equal", 0, 1),
    Sketcher.Constraint("Diameter", 0, 0.75),
    Sketcher.Constraint("DistanceX", -1, 1, 0, 3, 1.93934),
    Sketcher.Constraint("DistanceY", -1, 1, 0, 3, 8.93934),
    Sketcher.Constraint("DistanceX", -1, 1, 1, 3, 4.06066),
    Sketcher.Constraint("DistanceY", -1, 1, 1, 3, 11.06066),
])
sketch8.setExpression("Constraints[1]", "Params.sketch8_diameter")
doc.recompute()
hole = body.newObject("PartDesign::Hole", "Hole")
hole.Profile = sketch8
hole.ThreadType = "None"
hole.setExpression("Diameter", "Params.hole_diameter")
hole.DepthType = "ThroughAll"
hole.Reversed = True

# Sketch on XY plane
sketch9 = body.newObject("Sketcher::SketchObject", "Sketch008")
sketch9.AttachmentSupport = (doc.getObject("XY_Plane"), [""])
sketch9.MapMode = "FlatFace"
sketch9.AttachmentOffset = App.Placement(Vector(0, 0, 1.25), App.Rotation())
sketch9.addGeometry(Part.Circle(Vector(-6, 14.5, 0), Vector(0, 0, 1), 0.375), False)
sketch9.addConstraint([
    Sketcher.Constraint("Diameter", 0, 0.75),
    Sketcher.Constraint("DistanceX", 0, 3, -1, 1, 6.0),
    Sketcher.Constraint("DistanceY", -1, 1, 0, 3, 14.5),
])
sketch9.setExpression("Constraints[0]", "Params.sketch9_diameter")
doc.recompute()
hole2 = body.newObject("PartDesign::Hole", "Hole001")
hole2.Profile = sketch9
hole2.ThreadType = "None"
hole2.setExpression("Diameter", "Params.hole2_diameter")
hole2.DepthType = "ThroughAll"

# Sketch on an angled plane
sketch10 = body.newObject("Sketcher::SketchObject", "Sketch009")
sketch10.Placement = App.Placement(Vector(9.858757, 9.858757, 0), App.Rotation(Vector(-0.707106781, 0.707106781, 0), Vector(0, 0, 0.999999999), Vector(0.707106781, 0.707106781, 0), "ZXY"))
sketch10.addGeometry(Part.Circle(Vector(5.480078, 0.775, 0), Vector(0, 0, 1), 0.375), False)
sketch10.addConstraint([
    Sketcher.Constraint("Diameter", 0, 0.75),
    Sketcher.Constraint("DistanceY", -1, 1, 0, 3, 0.775),
    Sketcher.Constraint("DistanceX", -1, 1, 0, 3, 5.480078),
])
sketch10.setExpression("Constraints[0]", "Params.sketch10_diameter")
doc.recompute()
hole3 = body.newObject("PartDesign::Hole", "Hole002")
hole3.Profile = sketch10
hole3.ThreadType = "None"
hole3.setExpression("Diameter", "Params.hole3_diameter")
hole3.DepthType = "Dimension"
hole3.setExpression("Depth", "Params.hole3_depth")
hole3.DrillPoint = "Flat"

doc.recompute()
